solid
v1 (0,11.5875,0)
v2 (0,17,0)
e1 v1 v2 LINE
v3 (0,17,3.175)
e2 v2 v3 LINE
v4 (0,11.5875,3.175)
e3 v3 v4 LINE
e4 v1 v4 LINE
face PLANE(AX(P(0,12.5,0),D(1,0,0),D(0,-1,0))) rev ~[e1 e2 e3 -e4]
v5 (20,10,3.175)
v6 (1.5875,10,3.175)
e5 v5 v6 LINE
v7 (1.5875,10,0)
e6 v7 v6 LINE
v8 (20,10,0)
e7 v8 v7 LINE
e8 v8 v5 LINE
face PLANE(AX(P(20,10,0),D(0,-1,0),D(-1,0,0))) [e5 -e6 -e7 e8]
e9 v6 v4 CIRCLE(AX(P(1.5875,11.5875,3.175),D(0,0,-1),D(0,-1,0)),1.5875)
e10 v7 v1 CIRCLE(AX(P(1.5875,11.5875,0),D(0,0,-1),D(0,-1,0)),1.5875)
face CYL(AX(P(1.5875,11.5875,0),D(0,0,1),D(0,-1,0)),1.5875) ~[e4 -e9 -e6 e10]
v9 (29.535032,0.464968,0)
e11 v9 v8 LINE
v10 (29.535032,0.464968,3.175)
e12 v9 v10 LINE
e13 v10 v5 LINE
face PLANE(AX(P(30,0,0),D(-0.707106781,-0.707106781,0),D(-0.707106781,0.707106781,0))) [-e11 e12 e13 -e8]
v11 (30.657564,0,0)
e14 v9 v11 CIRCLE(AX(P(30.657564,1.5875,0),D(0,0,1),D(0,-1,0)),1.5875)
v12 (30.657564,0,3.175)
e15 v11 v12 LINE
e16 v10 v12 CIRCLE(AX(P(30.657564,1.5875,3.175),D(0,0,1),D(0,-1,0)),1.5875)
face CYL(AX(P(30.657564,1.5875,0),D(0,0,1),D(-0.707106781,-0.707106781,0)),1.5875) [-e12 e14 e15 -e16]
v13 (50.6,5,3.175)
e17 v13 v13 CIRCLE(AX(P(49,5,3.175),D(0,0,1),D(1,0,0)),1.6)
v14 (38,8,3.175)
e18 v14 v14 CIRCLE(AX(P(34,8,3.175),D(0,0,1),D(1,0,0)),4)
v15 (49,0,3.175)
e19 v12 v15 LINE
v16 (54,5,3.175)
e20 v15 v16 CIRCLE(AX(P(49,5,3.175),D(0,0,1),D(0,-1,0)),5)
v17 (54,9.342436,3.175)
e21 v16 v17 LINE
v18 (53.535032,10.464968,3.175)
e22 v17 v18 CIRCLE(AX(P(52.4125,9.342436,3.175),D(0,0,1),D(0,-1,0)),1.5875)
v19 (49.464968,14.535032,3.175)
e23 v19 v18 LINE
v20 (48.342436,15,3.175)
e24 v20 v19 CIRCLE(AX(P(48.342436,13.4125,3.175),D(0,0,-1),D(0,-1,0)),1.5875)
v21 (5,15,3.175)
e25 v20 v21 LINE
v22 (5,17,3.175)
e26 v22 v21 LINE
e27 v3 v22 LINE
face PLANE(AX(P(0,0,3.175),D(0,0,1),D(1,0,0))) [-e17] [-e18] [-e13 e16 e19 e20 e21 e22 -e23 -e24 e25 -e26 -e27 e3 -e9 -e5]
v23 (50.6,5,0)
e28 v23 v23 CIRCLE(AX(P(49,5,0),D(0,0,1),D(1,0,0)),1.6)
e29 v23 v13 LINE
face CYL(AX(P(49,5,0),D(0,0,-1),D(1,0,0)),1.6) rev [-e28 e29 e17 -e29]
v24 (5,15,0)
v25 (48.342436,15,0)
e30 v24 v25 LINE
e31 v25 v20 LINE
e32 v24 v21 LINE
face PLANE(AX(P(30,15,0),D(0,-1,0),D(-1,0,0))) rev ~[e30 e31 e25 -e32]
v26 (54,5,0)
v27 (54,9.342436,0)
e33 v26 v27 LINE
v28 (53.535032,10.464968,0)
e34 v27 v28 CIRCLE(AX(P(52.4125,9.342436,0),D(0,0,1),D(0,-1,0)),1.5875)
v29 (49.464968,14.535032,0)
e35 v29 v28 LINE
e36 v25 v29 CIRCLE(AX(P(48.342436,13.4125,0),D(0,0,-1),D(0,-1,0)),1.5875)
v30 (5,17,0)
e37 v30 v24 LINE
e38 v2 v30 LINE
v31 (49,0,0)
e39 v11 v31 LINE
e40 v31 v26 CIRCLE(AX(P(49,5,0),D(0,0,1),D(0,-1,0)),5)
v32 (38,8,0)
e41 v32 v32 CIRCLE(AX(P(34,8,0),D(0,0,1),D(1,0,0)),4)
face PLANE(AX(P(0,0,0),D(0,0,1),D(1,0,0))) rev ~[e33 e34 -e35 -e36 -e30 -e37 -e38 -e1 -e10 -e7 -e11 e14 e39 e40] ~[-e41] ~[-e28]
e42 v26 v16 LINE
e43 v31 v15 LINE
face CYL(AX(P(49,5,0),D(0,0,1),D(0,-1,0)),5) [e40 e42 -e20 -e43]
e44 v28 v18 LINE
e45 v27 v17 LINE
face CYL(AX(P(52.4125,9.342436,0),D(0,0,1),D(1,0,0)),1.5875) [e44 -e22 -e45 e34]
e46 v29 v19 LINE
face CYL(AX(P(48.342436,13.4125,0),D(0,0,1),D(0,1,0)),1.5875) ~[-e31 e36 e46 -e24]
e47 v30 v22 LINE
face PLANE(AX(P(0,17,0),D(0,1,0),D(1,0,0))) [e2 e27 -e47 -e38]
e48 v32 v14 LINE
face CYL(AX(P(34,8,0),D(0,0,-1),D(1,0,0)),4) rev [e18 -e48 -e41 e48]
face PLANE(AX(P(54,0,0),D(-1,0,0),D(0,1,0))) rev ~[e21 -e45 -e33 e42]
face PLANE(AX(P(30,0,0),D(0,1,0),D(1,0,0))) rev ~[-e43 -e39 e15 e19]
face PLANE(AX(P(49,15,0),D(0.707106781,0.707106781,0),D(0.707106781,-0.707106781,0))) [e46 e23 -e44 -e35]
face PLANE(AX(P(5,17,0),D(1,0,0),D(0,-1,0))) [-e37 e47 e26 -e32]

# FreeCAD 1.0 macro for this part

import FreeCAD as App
import Part
import Sketcher

V = App.Vector
Q = App.Units.Quantity


def edges_at(feature, points):
    """Names of the edges that pass closest to the given points."""
    edges = feature.Shape.Edges
    near = lambda p: min(range(len(edges)), key=lambda i: edges[i].distToShape(Part.Vertex(*p))[0])
    return sorted({f"Edge{near(p) + 1}" for p in points})


def add_polygon(sketch, points):
    """Adds a closed chain of lines whose ends are joined by coincident constraints."""
    first, n = sketch.GeometryCount, len(points)
    for a, b in zip(points, points[1:] + points[:1]):
        sketch.addGeometry(Part.LineSegment(App.Vector(*a, 0), App.Vector(*b, 0)), False)
    for i in range(n):
        sketch.addConstraint(Sketcher.Constraint("Coincident", first + i, 2, first + (i + 1) % n, 1))

doc = App.newDocument("Part")
params = doc.addObject("Spreadsheet::Sheet", "Params")
for row, (alias, value) in enumerate([
    ("sketch1_diameter", "8 mm"),
    ("sketch1_diameter2", "3.2 mm"),
    ("sketch1_width", "5 mm"),
    ("sketch1_width2", "20 mm"),
    ("sketch1_height", "10 mm"),
    ("pad1_length", "3.175 mm"),
    ("fillet_radius", "1.5875 mm"),
    ("fillet2_radius", "5 mm"),
], start=1):
    params.set(f"A{row}", alias)
    params.set(f"B{row}", "=" + value)
    params.setAlias(f"B{row}", alias)

body = doc.addObject("PartDesign::Body", "Body")

# Sketch on XY plane
sketch1 = doc.addObject("Sketcher::SketchObject", "Sketch")
body.addObject(sketch1)
sketch1.AttachmentSupport = (doc.XY_Plane, [""])
sketch1.MapMode = "FlatFace"
add_polygon(sketch1, [(20, 10), (30, 0), (54, 0), (54, 10), (49, 15), (5, 15), (5, 17), (0, 17), (0, 10)])  # lines 0-8
sketch1.addGeometry(Part.Circle(V(34, 8, 0), V(0, 0, 1), 4), False)  # 9
sketch1.addGeometry(Part.Circle(V(49, 5, 0), V(0, 0, 1), 1.6), False)  # 10
sketch1.addConstraint([
    Sketcher.Constraint("Horizontal", 1),
    Sketcher.Constraint("Vertical", 2),
    Sketcher.Constraint("Horizontal", 4),
    Sketcher.Constraint("Vertical", 5),
    Sketcher.Constraint("Horizontal", 6),
    Sketcher.Constraint("Vertical", 7),
    Sketcher.Constraint("Horizontal", 8),
    Sketcher.Constraint("PointOnObject", 0, 2, -1),
    Sketcher.Constraint("PointOnObject", 6, 2, -2),
    Sketcher.Constraint("Parallel", 0, 3),
    Sketcher.Constraint("Horizontal", 2, 2, 7, 2),
    Sketcher.Constraint("Vertical", 10, 3, 3, 2),
    Sketcher.Constraint("Diameter", 9, Q("8 mm")),
    Sketcher.Constraint("Diameter", 10, Q("3.2 mm")),
    Sketcher.Constraint("DistanceX", 6, 2, 6, 1, Q("5 mm")),
    Sketcher.Constraint("DistanceX", 8, 1, 8, 2, Q("20 mm")),
    Sketcher.Constraint("DistanceY", 2, 1, 2, 2, Q("10 mm")),
    Sketcher.Constraint("DistanceY", 5, 1, 5, 2, Q("2 mm")),
    Sketcher.Constraint("Angle", 0, Q("-45 deg")),
    Sketcher.Constraint("DistanceX", -1, 1, 9, 3, Q("34 mm")),
    Sketcher.Constraint("DistanceY", -1, 1, 9, 3, Q("8 mm")),
    Sketcher.Constraint("DistanceY", -1, 1, 10, 3, Q("5 mm")),
    Sketcher.Constraint("DistanceY", -1, 1, 3, 2, Q("15 mm")),
    Sketcher.Constraint("DistanceX", 9, 3, 10, 3, Q("15 mm")),
])
sketch1.setExpression("Constraints[21]", "Params.sketch1_diameter")
sketch1.setExpression("Constraints[22]", "Params.sketch1_diameter2")
sketch1.setExpression("Constraints[23]", "Params.sketch1_width")
sketch1.setExpression("Constraints[24]", "Params.sketch1_width2")
sketch1.setExpression("Constraints[25]", "Params.sketch1_height")
pad1 = doc.addObject("PartDesign::Pad", "Pad")
body.addObject(pad1)
pad1.Profile = sketch1
pad1.setExpression("Length", "Params.pad1_length")
doc.recompute()

fillet = doc.addObject("PartDesign::Fillet", "Fillet")
body.addObject(fillet)
fillet.Base = (pad1, edges_at(pad1, [
    (54, 10, 1.587),
    (0, 10, 1.587),
    (30, 0, 1.587),
    (49, 15, 1.587),
]))
fillet.setExpression("Radius", "Params.fillet_radius")
doc.recompute()

fillet2 = doc.addObject("PartDesign::Fillet", "Fillet001")
body.addObject(fillet2)
fillet2.Base = (fillet, edges_at(fillet, [(54, 0, 1.587)]))
fillet2.setExpression("Radius", "Params.fillet2_radius")

doc.recompute()
